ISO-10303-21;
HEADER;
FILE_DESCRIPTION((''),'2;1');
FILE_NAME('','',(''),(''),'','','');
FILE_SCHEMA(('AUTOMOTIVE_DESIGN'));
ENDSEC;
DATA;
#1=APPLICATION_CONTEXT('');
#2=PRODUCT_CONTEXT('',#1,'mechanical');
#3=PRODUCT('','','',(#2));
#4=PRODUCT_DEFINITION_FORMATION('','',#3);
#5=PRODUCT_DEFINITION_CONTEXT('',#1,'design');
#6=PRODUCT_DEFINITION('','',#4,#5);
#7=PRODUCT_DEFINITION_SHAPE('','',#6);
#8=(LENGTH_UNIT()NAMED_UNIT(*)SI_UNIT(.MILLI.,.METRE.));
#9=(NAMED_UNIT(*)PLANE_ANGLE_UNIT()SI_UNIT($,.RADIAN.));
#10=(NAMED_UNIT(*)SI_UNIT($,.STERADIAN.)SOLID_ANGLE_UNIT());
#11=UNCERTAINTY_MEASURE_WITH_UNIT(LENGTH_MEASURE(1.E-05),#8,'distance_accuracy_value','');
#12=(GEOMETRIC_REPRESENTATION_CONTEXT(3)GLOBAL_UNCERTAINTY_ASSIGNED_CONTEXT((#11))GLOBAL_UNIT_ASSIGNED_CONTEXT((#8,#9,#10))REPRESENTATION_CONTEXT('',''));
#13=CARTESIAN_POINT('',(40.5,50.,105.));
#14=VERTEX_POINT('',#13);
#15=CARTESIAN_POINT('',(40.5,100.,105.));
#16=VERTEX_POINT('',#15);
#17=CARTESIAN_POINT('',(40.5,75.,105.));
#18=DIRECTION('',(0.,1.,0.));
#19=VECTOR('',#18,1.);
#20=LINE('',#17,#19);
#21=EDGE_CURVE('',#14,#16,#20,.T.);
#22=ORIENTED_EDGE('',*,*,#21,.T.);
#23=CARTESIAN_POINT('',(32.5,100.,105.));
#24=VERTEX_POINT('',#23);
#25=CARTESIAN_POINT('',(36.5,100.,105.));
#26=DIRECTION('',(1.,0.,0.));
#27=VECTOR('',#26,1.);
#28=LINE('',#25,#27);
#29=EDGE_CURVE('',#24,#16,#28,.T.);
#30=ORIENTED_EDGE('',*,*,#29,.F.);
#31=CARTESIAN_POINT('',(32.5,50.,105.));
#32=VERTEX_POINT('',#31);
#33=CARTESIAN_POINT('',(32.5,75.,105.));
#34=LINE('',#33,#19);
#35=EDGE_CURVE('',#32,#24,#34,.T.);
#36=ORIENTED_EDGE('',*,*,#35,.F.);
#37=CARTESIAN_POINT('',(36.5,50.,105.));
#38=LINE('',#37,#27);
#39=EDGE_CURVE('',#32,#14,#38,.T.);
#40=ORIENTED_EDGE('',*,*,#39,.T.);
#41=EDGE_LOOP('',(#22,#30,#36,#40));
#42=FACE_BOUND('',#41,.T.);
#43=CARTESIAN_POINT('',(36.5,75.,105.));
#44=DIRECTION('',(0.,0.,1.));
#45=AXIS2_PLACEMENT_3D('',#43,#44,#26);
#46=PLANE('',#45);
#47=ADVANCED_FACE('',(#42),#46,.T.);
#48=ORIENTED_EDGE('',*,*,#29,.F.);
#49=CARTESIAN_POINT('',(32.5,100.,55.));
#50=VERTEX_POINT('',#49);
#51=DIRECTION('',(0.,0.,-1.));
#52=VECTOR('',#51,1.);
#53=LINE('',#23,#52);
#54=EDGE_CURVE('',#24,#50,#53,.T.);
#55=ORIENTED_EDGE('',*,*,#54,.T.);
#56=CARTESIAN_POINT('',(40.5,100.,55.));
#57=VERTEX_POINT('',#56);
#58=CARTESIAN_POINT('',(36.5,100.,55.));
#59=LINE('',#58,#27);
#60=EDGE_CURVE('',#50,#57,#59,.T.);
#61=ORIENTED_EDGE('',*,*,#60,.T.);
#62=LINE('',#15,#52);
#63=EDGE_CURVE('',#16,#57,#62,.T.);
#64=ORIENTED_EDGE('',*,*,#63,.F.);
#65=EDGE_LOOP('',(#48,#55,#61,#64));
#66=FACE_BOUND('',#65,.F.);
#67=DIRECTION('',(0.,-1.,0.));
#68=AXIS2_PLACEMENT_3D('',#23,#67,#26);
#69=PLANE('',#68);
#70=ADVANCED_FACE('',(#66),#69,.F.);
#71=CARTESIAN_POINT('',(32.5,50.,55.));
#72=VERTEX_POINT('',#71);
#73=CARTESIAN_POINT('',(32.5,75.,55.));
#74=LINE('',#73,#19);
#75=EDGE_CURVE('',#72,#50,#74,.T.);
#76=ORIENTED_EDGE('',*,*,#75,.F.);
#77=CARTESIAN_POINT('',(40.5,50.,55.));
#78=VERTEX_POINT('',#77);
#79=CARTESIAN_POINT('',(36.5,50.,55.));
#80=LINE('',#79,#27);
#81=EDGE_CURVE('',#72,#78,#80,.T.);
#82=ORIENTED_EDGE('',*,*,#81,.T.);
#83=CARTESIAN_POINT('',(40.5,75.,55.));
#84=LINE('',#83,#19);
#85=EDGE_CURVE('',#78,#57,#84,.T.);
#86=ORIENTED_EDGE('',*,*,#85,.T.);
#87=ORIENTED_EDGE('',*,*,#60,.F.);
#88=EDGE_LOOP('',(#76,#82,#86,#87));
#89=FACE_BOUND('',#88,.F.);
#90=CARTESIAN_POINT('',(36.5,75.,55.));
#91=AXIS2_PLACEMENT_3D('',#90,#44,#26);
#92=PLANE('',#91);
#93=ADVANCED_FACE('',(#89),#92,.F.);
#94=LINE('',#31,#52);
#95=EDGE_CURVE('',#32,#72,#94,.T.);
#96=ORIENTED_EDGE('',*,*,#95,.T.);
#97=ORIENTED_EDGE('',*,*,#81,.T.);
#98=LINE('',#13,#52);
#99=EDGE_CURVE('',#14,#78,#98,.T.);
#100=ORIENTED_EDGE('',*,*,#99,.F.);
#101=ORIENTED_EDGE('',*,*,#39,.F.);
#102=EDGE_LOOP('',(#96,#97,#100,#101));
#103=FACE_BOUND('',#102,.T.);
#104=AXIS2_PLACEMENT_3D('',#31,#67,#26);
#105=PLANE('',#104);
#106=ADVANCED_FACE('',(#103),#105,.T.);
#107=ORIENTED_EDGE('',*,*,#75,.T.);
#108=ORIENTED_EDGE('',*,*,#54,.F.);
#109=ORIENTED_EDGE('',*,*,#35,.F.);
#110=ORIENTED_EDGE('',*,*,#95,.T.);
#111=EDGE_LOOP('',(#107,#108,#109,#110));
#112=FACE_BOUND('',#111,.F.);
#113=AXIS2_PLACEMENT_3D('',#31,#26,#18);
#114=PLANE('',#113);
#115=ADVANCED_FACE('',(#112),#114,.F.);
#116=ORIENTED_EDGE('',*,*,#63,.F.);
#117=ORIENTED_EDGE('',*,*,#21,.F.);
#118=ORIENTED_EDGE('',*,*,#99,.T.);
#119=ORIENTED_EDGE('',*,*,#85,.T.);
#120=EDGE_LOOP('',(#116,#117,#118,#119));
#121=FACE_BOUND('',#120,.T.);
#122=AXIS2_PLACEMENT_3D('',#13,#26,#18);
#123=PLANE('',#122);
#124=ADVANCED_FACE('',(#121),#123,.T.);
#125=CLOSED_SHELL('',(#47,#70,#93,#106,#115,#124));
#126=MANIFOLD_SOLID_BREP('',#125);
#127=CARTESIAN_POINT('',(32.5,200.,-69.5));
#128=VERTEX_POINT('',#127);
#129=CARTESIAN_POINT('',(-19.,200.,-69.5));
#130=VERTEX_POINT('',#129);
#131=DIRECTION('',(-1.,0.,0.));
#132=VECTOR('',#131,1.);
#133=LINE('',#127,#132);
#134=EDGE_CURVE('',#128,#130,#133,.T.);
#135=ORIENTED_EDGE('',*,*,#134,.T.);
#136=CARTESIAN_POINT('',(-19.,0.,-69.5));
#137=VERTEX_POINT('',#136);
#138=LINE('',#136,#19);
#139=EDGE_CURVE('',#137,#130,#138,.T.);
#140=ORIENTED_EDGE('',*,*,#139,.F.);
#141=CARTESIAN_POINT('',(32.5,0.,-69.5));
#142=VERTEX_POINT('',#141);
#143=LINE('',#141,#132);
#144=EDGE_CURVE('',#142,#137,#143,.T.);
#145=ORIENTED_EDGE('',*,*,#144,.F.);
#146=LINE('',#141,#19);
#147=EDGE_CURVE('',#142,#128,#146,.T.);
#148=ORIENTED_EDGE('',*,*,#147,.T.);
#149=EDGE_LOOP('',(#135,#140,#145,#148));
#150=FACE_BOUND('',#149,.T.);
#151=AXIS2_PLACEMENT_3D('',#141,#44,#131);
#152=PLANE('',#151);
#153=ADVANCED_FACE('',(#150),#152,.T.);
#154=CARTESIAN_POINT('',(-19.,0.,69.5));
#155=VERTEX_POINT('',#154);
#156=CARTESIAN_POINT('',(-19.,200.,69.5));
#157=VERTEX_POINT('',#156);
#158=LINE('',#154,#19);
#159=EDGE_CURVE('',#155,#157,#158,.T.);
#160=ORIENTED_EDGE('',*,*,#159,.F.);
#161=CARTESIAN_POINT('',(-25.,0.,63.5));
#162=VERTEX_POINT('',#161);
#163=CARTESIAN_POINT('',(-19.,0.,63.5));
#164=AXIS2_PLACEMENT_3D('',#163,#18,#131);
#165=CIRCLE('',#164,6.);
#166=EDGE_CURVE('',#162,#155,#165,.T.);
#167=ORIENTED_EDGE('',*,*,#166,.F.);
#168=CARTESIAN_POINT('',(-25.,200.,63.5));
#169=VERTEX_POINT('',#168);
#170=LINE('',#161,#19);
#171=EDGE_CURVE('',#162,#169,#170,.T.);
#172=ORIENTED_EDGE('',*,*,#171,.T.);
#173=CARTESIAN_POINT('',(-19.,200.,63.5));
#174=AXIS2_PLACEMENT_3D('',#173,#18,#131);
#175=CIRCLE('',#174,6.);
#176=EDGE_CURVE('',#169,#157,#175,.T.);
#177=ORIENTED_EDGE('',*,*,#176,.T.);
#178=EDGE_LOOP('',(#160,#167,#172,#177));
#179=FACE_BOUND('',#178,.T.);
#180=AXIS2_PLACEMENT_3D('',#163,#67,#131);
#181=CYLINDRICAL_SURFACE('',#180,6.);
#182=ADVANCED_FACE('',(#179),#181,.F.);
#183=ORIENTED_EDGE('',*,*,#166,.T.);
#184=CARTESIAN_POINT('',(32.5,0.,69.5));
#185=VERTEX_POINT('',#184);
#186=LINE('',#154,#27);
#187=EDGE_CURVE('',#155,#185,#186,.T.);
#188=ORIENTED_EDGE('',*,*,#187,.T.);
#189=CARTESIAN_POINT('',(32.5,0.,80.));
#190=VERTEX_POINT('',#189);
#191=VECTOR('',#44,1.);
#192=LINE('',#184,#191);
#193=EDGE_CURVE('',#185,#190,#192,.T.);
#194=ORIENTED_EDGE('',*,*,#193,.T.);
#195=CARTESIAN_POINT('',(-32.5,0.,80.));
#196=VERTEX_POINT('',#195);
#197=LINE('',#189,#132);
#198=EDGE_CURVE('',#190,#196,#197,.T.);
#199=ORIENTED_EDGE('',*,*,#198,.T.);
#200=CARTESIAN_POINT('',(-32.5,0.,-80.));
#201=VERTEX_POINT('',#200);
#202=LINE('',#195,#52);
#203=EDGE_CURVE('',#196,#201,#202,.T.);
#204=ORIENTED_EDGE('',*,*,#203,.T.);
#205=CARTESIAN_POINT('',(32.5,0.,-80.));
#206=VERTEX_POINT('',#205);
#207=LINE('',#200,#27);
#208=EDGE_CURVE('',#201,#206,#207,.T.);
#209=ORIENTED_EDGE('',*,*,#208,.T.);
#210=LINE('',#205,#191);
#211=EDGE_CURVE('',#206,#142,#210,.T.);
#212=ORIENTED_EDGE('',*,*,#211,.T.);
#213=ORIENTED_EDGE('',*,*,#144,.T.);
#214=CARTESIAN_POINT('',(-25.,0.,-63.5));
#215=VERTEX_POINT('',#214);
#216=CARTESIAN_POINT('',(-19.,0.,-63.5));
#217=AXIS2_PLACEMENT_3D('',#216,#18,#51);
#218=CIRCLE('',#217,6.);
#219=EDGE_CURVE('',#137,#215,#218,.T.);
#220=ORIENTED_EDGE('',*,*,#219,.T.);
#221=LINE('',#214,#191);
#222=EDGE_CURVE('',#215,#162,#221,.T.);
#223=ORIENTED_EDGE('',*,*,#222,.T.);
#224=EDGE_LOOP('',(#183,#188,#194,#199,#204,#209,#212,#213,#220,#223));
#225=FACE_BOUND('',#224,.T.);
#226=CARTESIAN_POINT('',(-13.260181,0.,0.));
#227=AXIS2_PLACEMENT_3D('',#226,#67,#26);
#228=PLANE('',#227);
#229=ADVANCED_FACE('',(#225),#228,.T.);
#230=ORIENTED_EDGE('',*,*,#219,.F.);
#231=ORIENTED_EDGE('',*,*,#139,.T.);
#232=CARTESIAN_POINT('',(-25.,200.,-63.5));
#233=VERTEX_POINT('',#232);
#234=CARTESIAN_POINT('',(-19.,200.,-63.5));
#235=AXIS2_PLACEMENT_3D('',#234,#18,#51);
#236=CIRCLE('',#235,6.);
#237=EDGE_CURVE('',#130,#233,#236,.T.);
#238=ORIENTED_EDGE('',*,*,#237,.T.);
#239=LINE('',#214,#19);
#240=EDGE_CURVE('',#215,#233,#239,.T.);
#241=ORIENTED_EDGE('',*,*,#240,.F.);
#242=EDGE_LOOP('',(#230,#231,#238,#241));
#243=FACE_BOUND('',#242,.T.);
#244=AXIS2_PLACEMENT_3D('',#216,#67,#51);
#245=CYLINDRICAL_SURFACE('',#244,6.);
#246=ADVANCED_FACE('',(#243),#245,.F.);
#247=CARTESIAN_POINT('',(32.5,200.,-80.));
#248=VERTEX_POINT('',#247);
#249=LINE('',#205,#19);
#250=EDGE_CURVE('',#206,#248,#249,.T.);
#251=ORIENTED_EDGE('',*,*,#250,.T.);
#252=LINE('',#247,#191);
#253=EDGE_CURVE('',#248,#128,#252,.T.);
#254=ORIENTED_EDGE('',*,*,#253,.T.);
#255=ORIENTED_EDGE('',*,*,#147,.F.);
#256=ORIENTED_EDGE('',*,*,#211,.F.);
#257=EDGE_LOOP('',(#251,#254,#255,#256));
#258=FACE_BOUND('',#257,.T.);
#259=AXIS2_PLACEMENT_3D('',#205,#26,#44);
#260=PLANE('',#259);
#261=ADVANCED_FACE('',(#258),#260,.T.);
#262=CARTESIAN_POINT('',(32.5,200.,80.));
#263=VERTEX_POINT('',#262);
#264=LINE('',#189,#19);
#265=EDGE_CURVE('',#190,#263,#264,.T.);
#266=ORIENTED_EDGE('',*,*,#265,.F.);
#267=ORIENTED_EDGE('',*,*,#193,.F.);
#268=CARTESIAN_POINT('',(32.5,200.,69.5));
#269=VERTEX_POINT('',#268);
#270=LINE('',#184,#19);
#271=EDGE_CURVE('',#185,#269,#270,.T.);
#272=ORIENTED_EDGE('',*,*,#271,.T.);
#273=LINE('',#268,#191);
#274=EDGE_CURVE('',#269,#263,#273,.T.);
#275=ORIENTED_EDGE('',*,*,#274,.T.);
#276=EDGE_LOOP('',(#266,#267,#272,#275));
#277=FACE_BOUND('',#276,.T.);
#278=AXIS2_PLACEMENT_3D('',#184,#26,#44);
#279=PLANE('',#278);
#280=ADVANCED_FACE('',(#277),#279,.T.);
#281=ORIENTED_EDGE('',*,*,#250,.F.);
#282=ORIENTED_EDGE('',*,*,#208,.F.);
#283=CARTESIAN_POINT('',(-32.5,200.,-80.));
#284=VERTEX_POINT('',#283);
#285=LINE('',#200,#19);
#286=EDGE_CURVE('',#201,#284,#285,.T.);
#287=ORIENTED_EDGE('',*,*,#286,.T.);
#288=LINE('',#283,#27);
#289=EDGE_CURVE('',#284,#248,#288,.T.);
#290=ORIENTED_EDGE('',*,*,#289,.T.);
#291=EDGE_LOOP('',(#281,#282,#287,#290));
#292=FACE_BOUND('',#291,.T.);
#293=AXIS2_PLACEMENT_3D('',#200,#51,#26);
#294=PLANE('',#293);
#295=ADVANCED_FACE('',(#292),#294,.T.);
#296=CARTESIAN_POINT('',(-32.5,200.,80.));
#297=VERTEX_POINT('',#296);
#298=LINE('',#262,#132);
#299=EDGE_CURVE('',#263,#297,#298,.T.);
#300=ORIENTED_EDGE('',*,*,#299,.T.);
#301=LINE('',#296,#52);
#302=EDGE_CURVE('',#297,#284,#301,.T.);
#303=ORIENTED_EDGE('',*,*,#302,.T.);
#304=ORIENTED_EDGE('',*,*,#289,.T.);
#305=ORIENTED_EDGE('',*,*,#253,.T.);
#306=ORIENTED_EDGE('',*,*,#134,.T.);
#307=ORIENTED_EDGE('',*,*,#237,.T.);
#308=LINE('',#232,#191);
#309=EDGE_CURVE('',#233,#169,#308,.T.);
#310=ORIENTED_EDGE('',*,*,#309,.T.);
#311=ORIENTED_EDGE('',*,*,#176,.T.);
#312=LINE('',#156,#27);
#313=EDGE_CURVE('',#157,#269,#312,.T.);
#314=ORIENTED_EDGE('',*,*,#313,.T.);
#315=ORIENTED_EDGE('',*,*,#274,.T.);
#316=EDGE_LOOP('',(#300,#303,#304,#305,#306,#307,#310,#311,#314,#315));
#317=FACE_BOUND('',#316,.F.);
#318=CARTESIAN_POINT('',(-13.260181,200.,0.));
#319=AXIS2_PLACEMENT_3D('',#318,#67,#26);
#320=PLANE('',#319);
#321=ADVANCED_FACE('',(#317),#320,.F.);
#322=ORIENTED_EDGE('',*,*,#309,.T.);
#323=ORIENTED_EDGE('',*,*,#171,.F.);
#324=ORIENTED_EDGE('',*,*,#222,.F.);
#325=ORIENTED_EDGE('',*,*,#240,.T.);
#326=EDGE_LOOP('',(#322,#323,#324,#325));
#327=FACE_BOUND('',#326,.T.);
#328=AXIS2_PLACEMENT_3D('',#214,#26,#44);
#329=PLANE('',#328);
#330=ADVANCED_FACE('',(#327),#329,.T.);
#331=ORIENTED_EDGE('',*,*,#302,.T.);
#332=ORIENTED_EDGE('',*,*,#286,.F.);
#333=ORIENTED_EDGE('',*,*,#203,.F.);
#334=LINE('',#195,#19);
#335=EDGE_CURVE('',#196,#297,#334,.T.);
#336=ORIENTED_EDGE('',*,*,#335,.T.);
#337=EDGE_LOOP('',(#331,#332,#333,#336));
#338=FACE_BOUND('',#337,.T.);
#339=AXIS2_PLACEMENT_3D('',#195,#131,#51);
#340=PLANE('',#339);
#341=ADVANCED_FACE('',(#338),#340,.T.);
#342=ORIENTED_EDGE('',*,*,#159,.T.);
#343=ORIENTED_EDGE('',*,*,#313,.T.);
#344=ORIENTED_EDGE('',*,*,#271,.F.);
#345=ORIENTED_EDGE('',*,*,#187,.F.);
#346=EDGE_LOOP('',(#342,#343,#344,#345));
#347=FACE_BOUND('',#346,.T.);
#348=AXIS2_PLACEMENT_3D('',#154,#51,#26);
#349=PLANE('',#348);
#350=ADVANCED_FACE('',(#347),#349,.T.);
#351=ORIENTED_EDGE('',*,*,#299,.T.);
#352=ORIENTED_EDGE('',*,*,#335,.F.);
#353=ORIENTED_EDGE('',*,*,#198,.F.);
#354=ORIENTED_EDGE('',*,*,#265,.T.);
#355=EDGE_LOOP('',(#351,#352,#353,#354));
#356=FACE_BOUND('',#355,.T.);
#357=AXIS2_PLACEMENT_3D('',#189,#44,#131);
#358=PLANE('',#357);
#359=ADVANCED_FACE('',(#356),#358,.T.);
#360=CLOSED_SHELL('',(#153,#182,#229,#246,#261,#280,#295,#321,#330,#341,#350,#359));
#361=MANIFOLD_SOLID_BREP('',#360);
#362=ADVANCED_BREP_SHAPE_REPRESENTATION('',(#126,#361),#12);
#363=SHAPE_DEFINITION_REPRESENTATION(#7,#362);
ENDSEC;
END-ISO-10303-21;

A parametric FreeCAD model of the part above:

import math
import FreeCAD as App
import Part
import Sketcher
from FreeCAD import Vector
Q = App.Units.Quantity


def add_polygon(sketch, points):
    """Adds a closed chain of lines whose ends are joined by coincident constraints."""
    first, n = sketch.GeometryCount, len(points)
    for a, b in zip(points, points[1:] + points[:1]):
        sketch.addGeometry(Part.LineSegment(App.Vector(*a, 0), App.Vector(*b, 0)), False)
    for i in range(n):
        sketch.addConstraint(Sketcher.Constraint("Coincident", first + i, 2, first + (i + 1) % n, 1))

doc = App.newDocument("Part")
body = doc.addObject("PartDesign::Body", "Body")

sketch1 = body.newObject("Sketcher::SketchObject", "Sketch")
sketch1.AttachmentSupport = (doc.getObject("XZ_Plane"), [""])
sketch1.MapMode = "FlatFace"
sketch1.addGeometry(Part.LineSegment(Vector(32, 70, 0), Vector(32, 80, 0)), False)
sketch1.addGeometry(Part.LineSegment(Vector(32, 80, 0), Vector(-32, 80, 0)), False)
sketch1.addGeometry(Part.LineSegment(Vector(-32, 80, 0), Vector(-32, -80, 0)), False)
sketch1.addGeometry(Part.LineSegment(Vector(-32, -80, 0), Vector(32, -80, 0)), False)
sketch1.addGeometry(Part.LineSegment(Vector(32, -80, 0), Vector(32, -70, 0)), False)
sketch1.addGeometry(Part.LineSegment(Vector(32, -70, 0), Vector(-19, -70, 0)), False)
sketch1.addGeometry(Part.ArcOfCircle(Part.Circle(Vector(-19, -64, 0), Vector(0, 0, 1), 6), math.radians(180), math.radians(270)), False)
sketch1.addGeometry(Part.LineSegment(Vector(-25, -64, 0), Vector(-25, 64, 0)), False)
sketch1.addGeometry(Part.ArcOfCircle(Part.Circle(Vector(-19, 64, 0), Vector(0, 0, 1), 6), math.radians(90), math.radians(180)), False)
sketch1.addGeometry(Part.LineSegment(Vector(-19, 70, 0), Vector(32, 70, 0)), False)
sketch1.addConstraint(Sketcher.Constraint("Coincident", 0, 2, 1, 1))
sketch1.addConstraint(Sketcher.Constraint("Coincident", 1, 2, 2, 1))
sketch1.addConstraint(Sketcher.Constraint("Coincident", 2, 2, 3, 1))
sketch1.addConstraint(Sketcher.Constraint("Coincident", 3, 2, 4, 1))
sketch1.addConstraint(Sketcher.Constraint("Coincident", 4, 2, 5, 1))
sketch1.addConstraint(Sketcher.Constraint("Tangent", 5, 2, 6, 2))
sketch1.addConstraint(Sketcher.Constraint("Tangent", 6, 1, 7, 1))
sketch1.addConstraint(Sketcher.Constraint("Tangent", 7, 2, 8, 2))
sketch1.addConstraint(Sketcher.Constraint("Tangent", 8, 1, 9, 1))
sketch1.addConstraint(Sketcher.Constraint("Coincident", 9, 2, 0, 1))
sketch1.addConstraint(Sketcher.Constraint("Vertical", 0))
sketch1.addConstraint(Sketcher.Constraint("Horizontal", 1))
sketch1.addConstraint(Sketcher.Constraint("Vertical", 2))
sketch1.addConstraint(Sketcher.Constraint("Horizontal", 3))
sketch1.addConstraint(Sketcher.Constraint("Vertical", 4))
sketch1.addConstraint(Sketcher.Constraint("Horizontal", 5))
sketch1.addConstraint(Sketcher.Constraint("Vertical", 7))
sketch1.addConstraint(Sketcher.Constraint("Horizontal", 9))
sketch1.addConstraint(Sketcher.Constraint("Equal", 6, 8))
sketch1.addConstraint(Sketcher.Constraint("Symmetric", 0, 2, 2, 2, -1, 1))
sketch1.addConstraint(Sketcher.Constraint("Symmetric", 4, 2, 9, 2, -1))
sketch1.addConstraint(Sketcher.Constraint("Radius", 6, Q("6 mm")))
sketch1.addConstraint(Sketcher.Constraint("DistanceX", 1, 2, 1, 1, Q("65 mm")))
sketch1.addConstraint(Sketcher.Constraint("DistanceY", 2, 2, 2, 1, Q("160 mm")))
sketch1.addConstraint(Sketcher.Constraint("DistanceY", 7, 1, 7, 2, Q("127 mm")))
sketch1.addConstraint(Sketcher.Constraint("DistanceX", 5, 2, 5, 1, Q("51.5 mm")))
pad1 = body.newObject("PartDesign::Pad", "Pad")
pad1.Profile = sketch1
pad1.Length = 200
pad1.Reversed = True
body2 = doc.addObject("PartDesign::Body", "Body001")

sketch2 = body2.newObject("Sketcher::SketchObject", "Sketch001")
sketch2.AttachmentSupport = (doc.getObject("XY_Plane001"), [""])
sketch2.MapMode = "FlatFace"
sketch2.AttachmentOffset = App.Placement(Vector(0, 0, 105), App.Rotation())
add_polygon(sketch2, [(32, 100), (32, 50), (40, 50), (40, 100)])
sketch2.addConstraint(Sketcher.Constraint("Vertical", 0))
sketch2.addConstraint(Sketcher.Constraint("Horizontal", 1))
sketch2.addConstraint(Sketcher.Constraint("Vertical", 2))
sketch2.addConstraint(Sketcher.Constraint("Horizontal", 3))
sketch2.addConstraint(Sketcher.Constraint("DistanceX", 1, 1, 1, 2, Q("8 mm")))
sketch2.addConstraint(Sketcher.Constraint("DistanceY", 0, 2, 0, 1, Q("50 mm")))
sketch2.addConstraint(Sketcher.Constraint("DistanceY", -1, 1, 0, 2, Q("50 mm")))
sketch2.addConstraint(Sketcher.Constraint("DistanceX", -1, 1, 0, 2, Q("32.5 mm")))
pad2 = body2.newObject("PartDesign::Pad", "Pad001")
pad2.Profile = sketch2
pad2.Length = 50
pad2.Reversed = True

doc.recompute()
